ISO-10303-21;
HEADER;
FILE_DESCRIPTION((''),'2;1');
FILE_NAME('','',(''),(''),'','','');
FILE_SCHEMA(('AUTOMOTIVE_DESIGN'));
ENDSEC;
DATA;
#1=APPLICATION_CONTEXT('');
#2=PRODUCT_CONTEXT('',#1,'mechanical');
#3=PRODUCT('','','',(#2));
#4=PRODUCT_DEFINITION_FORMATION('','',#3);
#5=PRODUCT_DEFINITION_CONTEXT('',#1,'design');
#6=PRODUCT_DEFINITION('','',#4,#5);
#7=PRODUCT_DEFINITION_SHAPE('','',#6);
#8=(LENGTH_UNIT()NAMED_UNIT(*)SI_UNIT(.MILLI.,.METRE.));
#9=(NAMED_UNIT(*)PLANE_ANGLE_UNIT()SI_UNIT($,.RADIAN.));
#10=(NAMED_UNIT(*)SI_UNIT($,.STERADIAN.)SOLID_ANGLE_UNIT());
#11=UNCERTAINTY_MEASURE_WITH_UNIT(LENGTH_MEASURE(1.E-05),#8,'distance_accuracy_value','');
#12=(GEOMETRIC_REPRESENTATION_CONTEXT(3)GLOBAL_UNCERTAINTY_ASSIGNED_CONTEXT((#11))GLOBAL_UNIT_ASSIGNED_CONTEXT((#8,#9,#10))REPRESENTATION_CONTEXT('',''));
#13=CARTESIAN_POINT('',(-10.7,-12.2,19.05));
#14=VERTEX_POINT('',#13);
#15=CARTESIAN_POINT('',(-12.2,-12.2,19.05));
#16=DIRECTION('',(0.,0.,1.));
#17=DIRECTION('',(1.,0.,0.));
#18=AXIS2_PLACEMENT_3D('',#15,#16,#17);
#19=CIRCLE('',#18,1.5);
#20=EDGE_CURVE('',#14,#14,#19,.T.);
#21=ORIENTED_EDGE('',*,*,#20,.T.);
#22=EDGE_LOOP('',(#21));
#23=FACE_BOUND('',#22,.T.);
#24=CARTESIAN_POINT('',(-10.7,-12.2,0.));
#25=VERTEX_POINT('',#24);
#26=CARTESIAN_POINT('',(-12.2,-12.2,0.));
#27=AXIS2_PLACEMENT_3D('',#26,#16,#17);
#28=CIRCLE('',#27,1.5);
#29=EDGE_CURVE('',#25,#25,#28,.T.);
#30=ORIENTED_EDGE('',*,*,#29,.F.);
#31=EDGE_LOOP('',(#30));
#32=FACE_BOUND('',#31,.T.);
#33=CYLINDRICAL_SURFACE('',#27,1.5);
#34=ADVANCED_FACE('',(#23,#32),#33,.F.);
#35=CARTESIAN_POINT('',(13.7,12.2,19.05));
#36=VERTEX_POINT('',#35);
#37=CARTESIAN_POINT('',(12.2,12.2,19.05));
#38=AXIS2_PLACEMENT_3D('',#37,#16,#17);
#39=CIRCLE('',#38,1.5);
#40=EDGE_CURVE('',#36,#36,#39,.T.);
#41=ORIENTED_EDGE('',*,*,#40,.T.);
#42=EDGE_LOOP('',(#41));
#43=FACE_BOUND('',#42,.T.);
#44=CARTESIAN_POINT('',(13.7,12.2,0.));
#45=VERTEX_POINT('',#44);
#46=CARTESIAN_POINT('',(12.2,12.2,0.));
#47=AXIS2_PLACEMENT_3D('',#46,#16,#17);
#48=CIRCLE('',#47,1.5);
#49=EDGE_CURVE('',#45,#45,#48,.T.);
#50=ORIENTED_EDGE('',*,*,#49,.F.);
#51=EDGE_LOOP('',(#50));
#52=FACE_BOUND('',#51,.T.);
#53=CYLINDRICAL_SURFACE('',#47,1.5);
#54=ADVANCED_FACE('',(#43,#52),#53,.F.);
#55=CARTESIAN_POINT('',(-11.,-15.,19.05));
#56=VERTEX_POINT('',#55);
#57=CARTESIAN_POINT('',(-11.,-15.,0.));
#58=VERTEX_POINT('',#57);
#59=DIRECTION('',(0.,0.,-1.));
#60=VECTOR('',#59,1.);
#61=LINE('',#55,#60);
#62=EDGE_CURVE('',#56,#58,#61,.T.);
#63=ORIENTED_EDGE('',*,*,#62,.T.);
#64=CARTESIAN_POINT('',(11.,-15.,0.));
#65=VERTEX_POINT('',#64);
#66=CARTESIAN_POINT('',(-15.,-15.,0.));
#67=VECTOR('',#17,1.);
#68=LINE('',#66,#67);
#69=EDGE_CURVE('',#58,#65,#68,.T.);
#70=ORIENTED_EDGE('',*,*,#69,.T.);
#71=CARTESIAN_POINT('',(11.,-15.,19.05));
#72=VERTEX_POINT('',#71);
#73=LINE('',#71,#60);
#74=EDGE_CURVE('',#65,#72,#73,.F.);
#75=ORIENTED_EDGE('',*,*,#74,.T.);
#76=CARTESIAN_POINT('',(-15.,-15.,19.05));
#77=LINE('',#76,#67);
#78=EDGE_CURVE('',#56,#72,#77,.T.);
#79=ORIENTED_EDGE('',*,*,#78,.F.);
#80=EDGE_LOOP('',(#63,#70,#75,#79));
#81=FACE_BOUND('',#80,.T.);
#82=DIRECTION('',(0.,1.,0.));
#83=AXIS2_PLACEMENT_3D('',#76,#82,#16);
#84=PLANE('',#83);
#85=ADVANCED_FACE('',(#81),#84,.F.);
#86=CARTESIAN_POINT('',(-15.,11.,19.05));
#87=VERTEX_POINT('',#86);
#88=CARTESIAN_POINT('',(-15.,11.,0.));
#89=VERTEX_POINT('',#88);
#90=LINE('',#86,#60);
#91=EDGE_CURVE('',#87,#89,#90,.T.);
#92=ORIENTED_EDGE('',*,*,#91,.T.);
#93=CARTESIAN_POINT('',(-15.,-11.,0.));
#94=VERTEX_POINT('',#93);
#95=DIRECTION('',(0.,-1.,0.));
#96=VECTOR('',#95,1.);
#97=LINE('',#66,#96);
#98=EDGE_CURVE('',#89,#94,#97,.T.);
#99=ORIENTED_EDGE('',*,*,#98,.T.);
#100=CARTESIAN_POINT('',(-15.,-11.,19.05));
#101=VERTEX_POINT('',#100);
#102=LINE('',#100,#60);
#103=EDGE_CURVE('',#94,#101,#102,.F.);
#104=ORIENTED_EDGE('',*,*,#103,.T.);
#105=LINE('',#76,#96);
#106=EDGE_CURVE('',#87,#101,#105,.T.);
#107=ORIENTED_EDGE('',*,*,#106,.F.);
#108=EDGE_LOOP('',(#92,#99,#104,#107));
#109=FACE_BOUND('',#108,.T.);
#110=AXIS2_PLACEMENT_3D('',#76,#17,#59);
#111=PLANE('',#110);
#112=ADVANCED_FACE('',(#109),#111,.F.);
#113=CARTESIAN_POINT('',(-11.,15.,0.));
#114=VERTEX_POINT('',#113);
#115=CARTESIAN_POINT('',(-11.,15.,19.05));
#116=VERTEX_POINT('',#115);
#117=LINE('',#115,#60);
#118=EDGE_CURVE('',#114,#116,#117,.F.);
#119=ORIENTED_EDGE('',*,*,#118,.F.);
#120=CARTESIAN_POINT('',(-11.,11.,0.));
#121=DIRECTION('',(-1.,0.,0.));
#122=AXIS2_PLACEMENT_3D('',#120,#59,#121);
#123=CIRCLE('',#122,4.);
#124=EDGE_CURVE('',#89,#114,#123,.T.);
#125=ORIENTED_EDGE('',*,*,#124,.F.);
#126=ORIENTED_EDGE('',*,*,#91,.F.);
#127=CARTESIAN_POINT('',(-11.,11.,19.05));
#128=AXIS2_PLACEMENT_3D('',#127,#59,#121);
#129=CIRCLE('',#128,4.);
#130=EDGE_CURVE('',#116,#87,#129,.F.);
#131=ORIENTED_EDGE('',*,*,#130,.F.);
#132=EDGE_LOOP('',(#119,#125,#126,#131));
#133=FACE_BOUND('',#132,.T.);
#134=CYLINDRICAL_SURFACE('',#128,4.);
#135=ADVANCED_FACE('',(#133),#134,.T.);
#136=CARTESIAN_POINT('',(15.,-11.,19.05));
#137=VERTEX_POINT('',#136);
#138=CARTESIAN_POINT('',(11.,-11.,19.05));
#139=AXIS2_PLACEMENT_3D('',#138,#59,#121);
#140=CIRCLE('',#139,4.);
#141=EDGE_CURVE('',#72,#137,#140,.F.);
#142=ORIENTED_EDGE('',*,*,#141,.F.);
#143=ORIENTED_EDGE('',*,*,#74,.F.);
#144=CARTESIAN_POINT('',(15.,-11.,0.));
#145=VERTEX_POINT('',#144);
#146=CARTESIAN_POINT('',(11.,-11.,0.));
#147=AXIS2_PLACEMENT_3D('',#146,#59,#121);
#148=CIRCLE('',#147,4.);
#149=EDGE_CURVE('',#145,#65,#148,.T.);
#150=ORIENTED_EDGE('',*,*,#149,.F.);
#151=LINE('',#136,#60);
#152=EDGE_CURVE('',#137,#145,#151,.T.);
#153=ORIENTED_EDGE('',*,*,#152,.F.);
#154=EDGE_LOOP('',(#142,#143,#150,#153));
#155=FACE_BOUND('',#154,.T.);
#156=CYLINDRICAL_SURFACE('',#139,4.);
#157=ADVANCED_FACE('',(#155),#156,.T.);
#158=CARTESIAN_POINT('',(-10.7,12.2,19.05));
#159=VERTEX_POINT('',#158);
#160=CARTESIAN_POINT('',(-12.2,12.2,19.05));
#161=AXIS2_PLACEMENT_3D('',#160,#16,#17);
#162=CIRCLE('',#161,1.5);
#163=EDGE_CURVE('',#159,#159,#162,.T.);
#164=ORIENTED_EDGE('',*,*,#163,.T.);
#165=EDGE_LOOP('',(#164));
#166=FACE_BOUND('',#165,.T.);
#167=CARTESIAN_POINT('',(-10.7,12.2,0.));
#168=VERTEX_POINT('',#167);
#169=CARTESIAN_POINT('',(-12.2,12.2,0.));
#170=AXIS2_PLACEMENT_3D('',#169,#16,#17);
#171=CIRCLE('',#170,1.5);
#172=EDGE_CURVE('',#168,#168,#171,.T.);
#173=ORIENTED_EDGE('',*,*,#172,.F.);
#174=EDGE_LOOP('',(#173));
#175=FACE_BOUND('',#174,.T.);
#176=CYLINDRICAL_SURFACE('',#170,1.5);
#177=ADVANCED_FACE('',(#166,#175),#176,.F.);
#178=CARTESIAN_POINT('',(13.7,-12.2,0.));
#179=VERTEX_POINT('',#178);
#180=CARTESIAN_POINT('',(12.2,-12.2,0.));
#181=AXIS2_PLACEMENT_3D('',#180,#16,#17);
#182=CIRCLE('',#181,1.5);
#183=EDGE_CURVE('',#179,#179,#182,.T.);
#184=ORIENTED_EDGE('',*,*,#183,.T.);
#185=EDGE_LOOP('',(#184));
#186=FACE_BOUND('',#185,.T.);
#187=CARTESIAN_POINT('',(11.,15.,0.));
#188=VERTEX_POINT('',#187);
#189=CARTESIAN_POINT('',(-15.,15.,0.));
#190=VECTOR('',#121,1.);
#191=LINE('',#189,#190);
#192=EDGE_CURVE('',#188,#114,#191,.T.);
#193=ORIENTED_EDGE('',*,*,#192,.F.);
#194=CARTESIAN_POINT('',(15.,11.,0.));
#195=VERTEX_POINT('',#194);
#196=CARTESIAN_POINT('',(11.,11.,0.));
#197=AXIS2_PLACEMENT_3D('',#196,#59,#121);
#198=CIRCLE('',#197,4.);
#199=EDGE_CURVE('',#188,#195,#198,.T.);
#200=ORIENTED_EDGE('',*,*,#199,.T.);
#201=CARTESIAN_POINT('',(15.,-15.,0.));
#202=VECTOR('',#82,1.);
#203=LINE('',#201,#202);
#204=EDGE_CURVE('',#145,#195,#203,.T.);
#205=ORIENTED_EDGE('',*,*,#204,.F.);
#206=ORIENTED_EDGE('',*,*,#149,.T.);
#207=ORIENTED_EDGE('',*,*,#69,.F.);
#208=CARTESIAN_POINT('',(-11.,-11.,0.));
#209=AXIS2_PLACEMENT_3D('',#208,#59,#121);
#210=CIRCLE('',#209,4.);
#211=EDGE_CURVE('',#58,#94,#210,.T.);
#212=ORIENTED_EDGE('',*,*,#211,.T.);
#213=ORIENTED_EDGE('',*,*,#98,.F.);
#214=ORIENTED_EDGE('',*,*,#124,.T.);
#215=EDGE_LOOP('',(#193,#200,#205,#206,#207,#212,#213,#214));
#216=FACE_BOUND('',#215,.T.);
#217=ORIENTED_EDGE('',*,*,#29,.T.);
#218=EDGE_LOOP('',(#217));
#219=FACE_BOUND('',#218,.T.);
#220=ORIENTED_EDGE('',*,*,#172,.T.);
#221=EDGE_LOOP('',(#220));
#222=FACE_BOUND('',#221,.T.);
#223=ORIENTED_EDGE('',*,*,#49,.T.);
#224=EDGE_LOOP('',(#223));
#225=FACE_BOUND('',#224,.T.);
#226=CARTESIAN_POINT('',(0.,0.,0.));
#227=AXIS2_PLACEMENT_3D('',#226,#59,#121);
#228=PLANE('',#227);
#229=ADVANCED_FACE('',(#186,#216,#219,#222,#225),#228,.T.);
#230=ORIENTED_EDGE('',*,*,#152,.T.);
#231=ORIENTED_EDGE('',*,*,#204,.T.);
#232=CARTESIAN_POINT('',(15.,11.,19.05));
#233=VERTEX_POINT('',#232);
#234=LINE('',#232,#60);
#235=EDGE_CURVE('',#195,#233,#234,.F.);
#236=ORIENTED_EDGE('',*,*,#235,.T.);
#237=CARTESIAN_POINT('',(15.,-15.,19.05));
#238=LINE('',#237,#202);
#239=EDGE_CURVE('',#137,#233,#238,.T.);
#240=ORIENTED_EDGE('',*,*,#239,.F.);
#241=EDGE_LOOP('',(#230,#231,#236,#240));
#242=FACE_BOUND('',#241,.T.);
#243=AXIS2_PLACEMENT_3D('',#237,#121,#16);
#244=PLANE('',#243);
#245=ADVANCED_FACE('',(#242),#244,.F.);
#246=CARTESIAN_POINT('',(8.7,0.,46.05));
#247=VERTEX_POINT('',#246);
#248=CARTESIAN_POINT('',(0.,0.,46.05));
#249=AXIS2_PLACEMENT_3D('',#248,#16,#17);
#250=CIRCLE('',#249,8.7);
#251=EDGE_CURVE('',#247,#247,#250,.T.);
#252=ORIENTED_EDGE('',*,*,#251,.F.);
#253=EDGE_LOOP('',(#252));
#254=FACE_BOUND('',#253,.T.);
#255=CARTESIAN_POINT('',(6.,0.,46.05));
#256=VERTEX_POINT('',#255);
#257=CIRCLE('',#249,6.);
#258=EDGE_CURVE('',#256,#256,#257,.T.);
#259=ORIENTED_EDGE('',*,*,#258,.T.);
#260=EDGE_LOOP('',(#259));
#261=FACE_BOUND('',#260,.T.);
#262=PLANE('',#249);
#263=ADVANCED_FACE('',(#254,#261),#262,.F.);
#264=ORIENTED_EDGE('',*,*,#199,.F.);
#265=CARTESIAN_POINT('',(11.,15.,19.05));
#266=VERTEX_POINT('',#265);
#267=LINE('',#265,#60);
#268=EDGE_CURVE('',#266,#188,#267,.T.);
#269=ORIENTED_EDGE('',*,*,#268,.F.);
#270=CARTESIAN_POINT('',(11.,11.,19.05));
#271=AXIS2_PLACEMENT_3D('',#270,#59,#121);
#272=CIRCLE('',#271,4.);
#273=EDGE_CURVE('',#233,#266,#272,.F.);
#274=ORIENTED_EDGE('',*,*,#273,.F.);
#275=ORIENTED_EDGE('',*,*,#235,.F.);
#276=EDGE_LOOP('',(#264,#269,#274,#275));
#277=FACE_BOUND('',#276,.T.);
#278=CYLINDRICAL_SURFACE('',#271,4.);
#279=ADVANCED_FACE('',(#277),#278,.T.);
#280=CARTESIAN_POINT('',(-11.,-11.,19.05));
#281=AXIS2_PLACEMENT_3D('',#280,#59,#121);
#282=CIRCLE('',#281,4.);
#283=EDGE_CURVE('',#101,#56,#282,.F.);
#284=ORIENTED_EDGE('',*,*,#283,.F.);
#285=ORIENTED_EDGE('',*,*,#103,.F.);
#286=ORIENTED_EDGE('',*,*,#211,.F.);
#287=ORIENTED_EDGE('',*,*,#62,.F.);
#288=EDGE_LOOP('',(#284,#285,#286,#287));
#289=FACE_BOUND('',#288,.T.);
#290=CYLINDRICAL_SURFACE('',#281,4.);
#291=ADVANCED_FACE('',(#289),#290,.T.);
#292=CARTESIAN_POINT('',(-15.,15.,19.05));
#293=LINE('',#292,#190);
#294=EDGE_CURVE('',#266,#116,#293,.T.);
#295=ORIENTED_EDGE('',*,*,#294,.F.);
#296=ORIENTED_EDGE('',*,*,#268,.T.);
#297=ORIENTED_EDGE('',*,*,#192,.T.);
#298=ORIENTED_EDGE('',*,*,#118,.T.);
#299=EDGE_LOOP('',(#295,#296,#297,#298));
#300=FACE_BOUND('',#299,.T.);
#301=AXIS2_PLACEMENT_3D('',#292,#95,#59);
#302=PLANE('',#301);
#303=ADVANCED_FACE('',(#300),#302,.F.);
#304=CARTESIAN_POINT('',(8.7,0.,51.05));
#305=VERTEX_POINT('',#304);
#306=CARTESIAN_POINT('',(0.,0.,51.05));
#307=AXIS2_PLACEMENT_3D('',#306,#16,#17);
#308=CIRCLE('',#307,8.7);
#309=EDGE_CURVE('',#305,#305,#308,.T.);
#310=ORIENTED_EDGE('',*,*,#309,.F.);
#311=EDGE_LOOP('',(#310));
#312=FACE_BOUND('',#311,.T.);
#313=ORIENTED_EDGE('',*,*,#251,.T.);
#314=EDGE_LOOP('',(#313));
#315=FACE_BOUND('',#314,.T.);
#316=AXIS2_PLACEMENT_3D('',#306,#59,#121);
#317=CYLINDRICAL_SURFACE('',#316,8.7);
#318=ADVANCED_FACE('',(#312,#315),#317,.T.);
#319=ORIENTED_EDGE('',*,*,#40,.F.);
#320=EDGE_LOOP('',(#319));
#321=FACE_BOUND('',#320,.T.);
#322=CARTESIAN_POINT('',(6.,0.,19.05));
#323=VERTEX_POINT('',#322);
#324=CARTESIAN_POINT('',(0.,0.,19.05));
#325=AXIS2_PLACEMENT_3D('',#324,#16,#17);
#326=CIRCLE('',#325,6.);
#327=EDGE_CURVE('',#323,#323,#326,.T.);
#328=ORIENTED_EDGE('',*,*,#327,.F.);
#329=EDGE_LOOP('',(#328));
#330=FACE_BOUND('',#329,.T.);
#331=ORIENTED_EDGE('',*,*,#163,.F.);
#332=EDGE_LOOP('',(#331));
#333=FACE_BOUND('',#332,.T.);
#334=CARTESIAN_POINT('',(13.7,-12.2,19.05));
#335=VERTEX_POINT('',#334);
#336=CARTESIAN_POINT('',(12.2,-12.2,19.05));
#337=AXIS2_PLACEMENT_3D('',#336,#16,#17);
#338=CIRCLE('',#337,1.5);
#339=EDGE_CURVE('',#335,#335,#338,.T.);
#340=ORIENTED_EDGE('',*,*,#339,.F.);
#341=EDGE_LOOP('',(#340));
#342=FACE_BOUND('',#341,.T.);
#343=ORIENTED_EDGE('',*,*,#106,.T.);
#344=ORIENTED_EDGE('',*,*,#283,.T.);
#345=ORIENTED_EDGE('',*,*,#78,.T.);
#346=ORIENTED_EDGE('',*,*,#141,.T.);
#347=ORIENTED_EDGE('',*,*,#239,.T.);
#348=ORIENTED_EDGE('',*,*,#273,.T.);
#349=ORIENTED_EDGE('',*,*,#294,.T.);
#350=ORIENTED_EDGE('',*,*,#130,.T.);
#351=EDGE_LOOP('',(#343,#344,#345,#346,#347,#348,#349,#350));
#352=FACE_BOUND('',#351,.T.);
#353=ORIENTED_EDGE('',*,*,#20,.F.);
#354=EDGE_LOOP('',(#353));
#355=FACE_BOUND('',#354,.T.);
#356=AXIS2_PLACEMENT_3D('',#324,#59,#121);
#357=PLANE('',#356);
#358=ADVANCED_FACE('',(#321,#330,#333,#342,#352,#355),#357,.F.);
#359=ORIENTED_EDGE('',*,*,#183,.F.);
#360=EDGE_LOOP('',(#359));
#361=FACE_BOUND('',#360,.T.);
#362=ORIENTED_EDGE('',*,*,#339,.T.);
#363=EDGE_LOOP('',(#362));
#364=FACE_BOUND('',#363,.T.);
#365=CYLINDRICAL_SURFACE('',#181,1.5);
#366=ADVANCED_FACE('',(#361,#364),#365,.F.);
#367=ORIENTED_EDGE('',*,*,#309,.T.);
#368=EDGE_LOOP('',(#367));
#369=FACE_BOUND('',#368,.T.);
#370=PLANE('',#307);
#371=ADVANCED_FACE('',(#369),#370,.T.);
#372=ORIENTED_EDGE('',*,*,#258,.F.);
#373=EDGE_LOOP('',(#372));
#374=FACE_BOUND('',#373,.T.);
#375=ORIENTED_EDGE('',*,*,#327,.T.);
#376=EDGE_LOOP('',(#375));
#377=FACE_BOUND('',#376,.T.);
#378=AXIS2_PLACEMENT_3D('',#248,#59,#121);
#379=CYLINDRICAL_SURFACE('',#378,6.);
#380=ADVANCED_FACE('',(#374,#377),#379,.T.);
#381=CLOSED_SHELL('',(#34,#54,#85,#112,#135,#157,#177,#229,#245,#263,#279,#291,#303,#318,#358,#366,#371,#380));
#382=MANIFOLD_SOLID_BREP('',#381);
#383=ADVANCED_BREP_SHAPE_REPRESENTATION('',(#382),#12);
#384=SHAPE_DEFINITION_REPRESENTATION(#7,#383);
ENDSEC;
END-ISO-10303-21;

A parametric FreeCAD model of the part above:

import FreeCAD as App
import Part
import Sketcher
from FreeCAD import Vector


def edges_at(feature, points):
    """Names of the edges that pass closest to the given points."""
    edges = feature.Shape.Edges
    near = lambda p: min(range(len(edges)), key=lambda i: edges[i].distToShape(Part.Vertex(*p))[0])
    return sorted({f"Edge{near(p) + 1}" for p in points})

doc = App.newDocument("Part")
params = doc.addObject("Spreadsheet::Sheet", "Params")
for row, (alias, value) in enumerate([
    ("sketch1_width", "30 mm"),
    ("pad1_length", "19.05 mm"),
    ("fillet_radius", "4 mm"),
    ("sketch2_diameter", "3 mm"),
    ("sketch3_diameter", "17.4 mm"),
    ("pad2_length", "32 mm"),
    ("sketch4_diameter", "12 mm"),
    ("sketch4_diameter2", "17.4 mm"),
    ("pocket2_length", "27 mm"),
], start=1):
    params.set(f"A{row}", alias)
    params.set(f"B{row}", "=" + value)
    params.setAlias(f"B{row}", alias)

body = doc.addObject("PartDesign::Body", "Body")

sketch1 = body.newObject("Sketcher::SketchObject", "Sketch")
sketch1.AttachmentSupport = (doc.getObject("XY_Plane"), [""])
sketch1.MapMode = "FlatFace"
sketch1.addGeometry(Part.LineSegment(Vector(-15, 15, 0), Vector(-15, -15, 0)), False)
sketch1.addGeometry(Part.LineSegment(Vector(-15, -15, 0), Vector(15, -15, 0)), False)
sketch1.addGeometry(Part.LineSegment(Vector(15, -15, 0), Vector(15, 15, 0)), False)
sketch1.addGeometry(Part.LineSegment(Vector(15, 15, 0), Vector(-15, 15, 0)), False)
sketch1.addConstraint(Sketcher.Constraint("Coincident", 0, 2, 1, 1))
sketch1.addConstraint(Sketcher.Constraint("Coincident", 1, 2, 2, 1))
sketch1.addConstraint(Sketcher.Constraint("Coincident", 2, 2, 3, 1))
sketch1.addConstraint(Sketcher.Constraint("Coincident", 3, 2, 0, 1))
sketch1.addConstraint(Sketcher.Constraint("Vertical", 0))
sketch1.addConstraint(Sketcher.Constraint("Horizontal", 1))
sketch1.addConstraint(Sketcher.Constraint("Vertical", 2))
sketch1.addConstraint(Sketcher.Constraint("Horizontal", 3))
sketch1.addConstraint(Sketcher.Constraint("Symmetric", 0, 2, 2, 2, -1, 1))
sketch1.addConstraint(Sketcher.Constraint("Equal", 3, 0))
sketch1.addConstraint(Sketcher.Constraint("DistanceX", 1, 1, 1, 2, 30.0))
sketch1.setExpression("Constraints[10]", "Params.sketch1_width")
pad1 = body.newObject("PartDesign::Pad", "Pad")
pad1.Profile = sketch1
pad1.setExpression("Length", "Params.pad1_length")
doc.recompute()

fillet = body.newObject("PartDesign::Fillet", "Fillet")
fillet.Base = (pad1, edges_at(pad1, [
    (15, -15, 9.525),
    (-15, -15, 9.525),
    (-15, 15, 9.525),
    (15, 15, 9.525),
]))
fillet.setExpression("Radius", "Params.fillet_radius")

sketch2 = body.newObject("Sketcher::SketchObject", "Sketch001")
sketch2.AttachmentSupport = (doc.getObject("XY_Plane"), [""])
sketch2.MapMode = "FlatFace"
sketch2.AttachmentOffset = App.Placement(Vector(0, 0, 19.05), App.Rotation())
sketch2.addGeometry(Part.Circle(Vector(-12.2, 12.2, 0), Vector(0, 0, 1), 1.5), False)
sketch2.addGeometry(Part.Circle(Vector(12.2, 12.2, 0), Vector(0, 0, 1), 1.5), False)
sketch2.addGeometry(Part.Circle(Vector(12.2, -12.2, 0), Vector(0, 0, 1), 1.5), False)
sketch2.addGeometry(Part.Circle(Vector(-12.2, -12.2, 0), Vector(0, 0, 1), 1.5), False)
sketch2.addConstraint(Sketcher.Constraint("Equal", 0, 1))
sketch2.addConstraint(Sketcher.Constraint("Equal", 1, 2))
sketch2.addConstraint(Sketcher.Constraint("Equal", 2, 3))
sketch2.addConstraint(Sketcher.Constraint("Symmetric", 0, 3, 2, 3, -1, 1))
sketch2.addConstraint(Sketcher.Constraint("Symmetric", 1, 3, 3, 3, -1, 1))
sketch2.addConstraint(Sketcher.Constraint("Symmetric", 0, 3, 1, 3, -2))
sketch2.addConstraint(Sketcher.Constraint("Diameter", 0, 3.0))
sketch2.addConstraint(Sketcher.Constraint("DistanceX", 0, 3, -1, 1, 12.2))
sketch2.addConstraint(Sketcher.Constraint("DistanceY", -1, 1, 0, 3, 12.2))
sketch2.setExpression("Constraints[6]", "Params.sketch2_diameter")
pocket1 = body.newObject("PartDesign::Pocket", "Pocket")
pocket1.Profile = sketch2
pocket1.Type = "ThroughAll"

sketch3 = body.newObject("Sketcher::SketchObject", "Sketch002")
sketch3.AttachmentSupport = (doc.getObject("XY_Plane"), [""])
sketch3.MapMode = "FlatFace"
sketch3.AttachmentOffset = App.Placement(Vector(0, 0, 19.05), App.Rotation())
sketch3.addGeometry(Part.Circle(Vector(0, 0, 0), Vector(0, 0, 1), 8.7), False)
sketch3.addConstraint(Sketcher.Constraint("Coincident", 0, 3, -1, 1))
sketch3.addConstraint(Sketcher.Constraint("Diameter", 0, 17.4))
sketch3.setExpression("Constraints[1]", "Params.sketch3_diameter")
pad2 = body.newObject("PartDesign::Pad", "Pad001")
pad2.Profile = sketch3
pad2.setExpression("Length", "Params.pad2_length")

sketch4 = body.newObject("Sketcher::SketchObject", "Sketch003")
sketch4.AttachmentSupport = (doc.getObject("XY_Plane"), [""])
sketch4.MapMode = "FlatFace"
sketch4.AttachmentOffset = App.Placement(Vector(0, 0, 19.05), App.Rotation())
sketch4.addGeometry(Part.Circle(Vector(0, 0, 0), Vector(0, 0, 1), 8.7), False)
sketch4.addGeometry(Part.Circle(Vector(0, 0, 0), Vector(0, 0, 1), 6), False)
sketch4.addConstraint(Sketcher.Constraint("Coincident", 0, 3, -1, 1))
sketch4.addConstraint(Sketcher.Constraint("Coincident", 1, 3, -1, 1))
sketch4.addConstraint(Sketcher.Constraint("Diameter", 1, 12.0))
sketch4.addConstraint(Sketcher.Constraint("Diameter", 0, 17.4))
sketch4.setExpression("Constraints[2]", "Params.sketch4_diameter")
sketch4.setExpression("Constraints[3]", "Params.sketch4_diameter2")
pocket2 = body.newObject("PartDesign::Pocket", "Pocket001")
pocket2.Profile = sketch4
pocket2.setExpression("Length", "Params.pocket2_length")
pocket2.Reversed = True

doc.recompute()
